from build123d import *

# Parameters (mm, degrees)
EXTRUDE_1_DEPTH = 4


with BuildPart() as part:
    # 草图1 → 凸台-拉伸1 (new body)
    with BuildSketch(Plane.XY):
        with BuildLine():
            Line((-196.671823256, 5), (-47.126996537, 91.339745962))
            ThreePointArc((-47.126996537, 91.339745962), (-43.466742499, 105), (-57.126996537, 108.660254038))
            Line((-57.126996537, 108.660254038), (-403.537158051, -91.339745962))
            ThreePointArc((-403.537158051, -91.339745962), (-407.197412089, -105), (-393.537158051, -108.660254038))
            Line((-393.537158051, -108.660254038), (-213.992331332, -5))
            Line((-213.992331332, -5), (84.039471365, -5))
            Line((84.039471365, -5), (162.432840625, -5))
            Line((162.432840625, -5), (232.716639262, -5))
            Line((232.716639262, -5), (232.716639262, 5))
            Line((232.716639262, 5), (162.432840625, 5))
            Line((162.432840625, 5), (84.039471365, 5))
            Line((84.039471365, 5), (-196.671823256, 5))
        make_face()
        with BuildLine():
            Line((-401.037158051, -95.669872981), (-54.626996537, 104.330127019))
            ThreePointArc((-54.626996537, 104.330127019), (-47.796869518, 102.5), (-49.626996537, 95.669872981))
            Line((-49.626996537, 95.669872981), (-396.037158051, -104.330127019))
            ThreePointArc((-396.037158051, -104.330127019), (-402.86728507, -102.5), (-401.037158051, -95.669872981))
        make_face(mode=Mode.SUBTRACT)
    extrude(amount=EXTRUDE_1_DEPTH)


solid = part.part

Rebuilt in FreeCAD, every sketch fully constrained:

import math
import FreeCAD as App
import Part
import Sketcher
Q = App.Units.Quantity

doc = App.newDocument("Part")
body = doc.addObject("PartDesign::Body", "Body")

sketch1 = body.newObject("Sketcher::SketchObject", "Sketch")
sketch1.AttachmentSupport = (doc.getObject("XY_Plane"), [""])
sketch1.MapMode = "FlatFace"
sketch1.addGeometry(Part.LineSegment(App.Vector(-197, 5, 0), App.Vector(-47, 91, 0)), False)
sketch1.addGeometry(Part.ArcOfCircle(Part.Circle(App.Vector(-52, 100, 0), App.Vector(0, 0, 1), 10), math.radians(-60), math.radians(120)), False)
sketch1.addGeometry(Part.LineSegment(App.Vector(-57, 109, 0), App.Vector(-404, -91, 0)), False)
sketch1.addGeometry(Part.ArcOfCircle(Part.Circle(App.Vector(-399, -100, 0), App.Vector(0, 0, 1), 10), math.radians(120), math.radians(300)), False)
sketch1.addGeometry(Part.LineSegment(App.Vector(-394, -109, 0), App.Vector(-214, -5, 0)), False)
sketch1.addGeometry(Part.LineSegment(App.Vector(-214, -5, 0), App.Vector(233, -5, 0)), False)
sketch1.addGeometry(Part.LineSegment(App.Vector(233, -5, 0), App.Vector(233, 5, 0)), False)
sketch1.addGeometry(Part.LineSegment(App.Vector(233, 5, 0), App.Vector(-197, 5, 0)), False)
sketch1.addGeometry(Part.ArcOfCircle(Part.Circle(App.Vector(-399, -100, 0), App.Vector(0, 0, 1), 5), math.radians(120), math.radians(300)), False)
sketch1.addGeometry(Part.LineSegment(App.Vector(-401, -96, 0), App.Vector(-55, 104, 0)), False)
sketch1.addGeometry(Part.ArcOfCircle(Part.Circle(App.Vector(-52, 100, 0), App.Vector(0, 0, 1), 5), math.radians(-60), math.radians(120)), False)
sketch1.addGeometry(Part.LineSegment(App.Vector(-50, 96, 0), App.Vector(-396, -104, 0)), False)
sketch1.addConstraint(Sketcher.Constraint("Tangent", 0, 2, 1, 1))
sketch1.addConstraint(Sketcher.Constraint("Tangent", 1, 2, 2, 1))
sketch1.addConstraint(Sketcher.Constraint("Tangent", 2, 2, 3, 1))
sketch1.addConstraint(Sketcher.Constraint("Tangent", 3, 2, 4, 1))
sketch1.addConstraint(Sketcher.Constraint("Coincident", 4, 2, 5, 1))
sketch1.addConstraint(Sketcher.Constraint("Coincident", 5, 2, 6, 1))
sketch1.addConstraint(Sketcher.Constraint("Coincident", 6, 2, 7, 1))
sketch1.addConstraint(Sketcher.Constraint("Coincident", 7, 2, 0, 1))
sketch1.addConstraint(Sketcher.Constraint("Tangent", 8, 1, 9, 1))
sketch1.addConstraint(Sketcher.Constraint("Tangent", 9, 2, 10, 2))
sketch1.addConstraint(Sketcher.Constraint("Tangent", 10, 1, 11, 1))
sketch1.addConstraint(Sketcher.Constraint("Tangent", 11, 2, 8, 2))
sketch1.addConstraint(Sketcher.Constraint("Horizontal", 5))
sketch1.addConstraint(Sketcher.Constraint("Vertical", 6))
sketch1.addConstraint(Sketcher.Constraint("Horizontal", 7))
sketch1.addConstraint(Sketcher.Constraint("Coincident", 8, 3, 3, 3))
sketch1.addConstraint(Sketcher.Constraint("Coincident", 10, 3, 1, 3))
sketch1.addConstraint(Sketcher.Constraint("Equal", 1, 3))
sketch1.addConstraint(Sketcher.Constraint("Equal", 8, 10))
sketch1.addConstraint(Sketcher.Constraint("Parallel", 0, 2))
sketch1.addConstraint(Sketcher.Constraint("Parallel", 2, 4))
sketch1.addConstraint(Sketcher.Constraint("Radius", 1, Q("10 mm")))
sketch1.addConstraint(Sketcher.Constraint("Radius", 8, Q("5 mm")))
sketch1.addConstraint(Sketcher.Constraint("DistanceY", 6, 1, 6, 2, Q("10 mm")))
sketch1.addConstraint(Sketcher.Constraint("Angle", 0, Q("30 deg")))
sketch1.addConstraint(Sketcher.Constraint("Distance", 2, Q("400 mm")))
sketch1.addConstraint(Sketcher.Constraint("DistanceY", -1, 1, 1, 3, Q("100 mm")))
sketch1.addConstraint(Sketcher.Constraint("DistanceY", 4, 2, -1, 1, Q("5 mm")))
sketch1.addConstraint(Sketcher.Constraint("DistanceX", 5, 1, 5, 2, Q("446.708971 mm")))
sketch1.addConstraint(Sketcher.Constraint("DistanceX", 3, 3, -1, 1, Q("398.537158 mm")))
pad1 = body.newObject("PartDesign::Pad", "Pad")
pad1.Profile = sketch1
pad1.Length = 4

doc.recompute()
